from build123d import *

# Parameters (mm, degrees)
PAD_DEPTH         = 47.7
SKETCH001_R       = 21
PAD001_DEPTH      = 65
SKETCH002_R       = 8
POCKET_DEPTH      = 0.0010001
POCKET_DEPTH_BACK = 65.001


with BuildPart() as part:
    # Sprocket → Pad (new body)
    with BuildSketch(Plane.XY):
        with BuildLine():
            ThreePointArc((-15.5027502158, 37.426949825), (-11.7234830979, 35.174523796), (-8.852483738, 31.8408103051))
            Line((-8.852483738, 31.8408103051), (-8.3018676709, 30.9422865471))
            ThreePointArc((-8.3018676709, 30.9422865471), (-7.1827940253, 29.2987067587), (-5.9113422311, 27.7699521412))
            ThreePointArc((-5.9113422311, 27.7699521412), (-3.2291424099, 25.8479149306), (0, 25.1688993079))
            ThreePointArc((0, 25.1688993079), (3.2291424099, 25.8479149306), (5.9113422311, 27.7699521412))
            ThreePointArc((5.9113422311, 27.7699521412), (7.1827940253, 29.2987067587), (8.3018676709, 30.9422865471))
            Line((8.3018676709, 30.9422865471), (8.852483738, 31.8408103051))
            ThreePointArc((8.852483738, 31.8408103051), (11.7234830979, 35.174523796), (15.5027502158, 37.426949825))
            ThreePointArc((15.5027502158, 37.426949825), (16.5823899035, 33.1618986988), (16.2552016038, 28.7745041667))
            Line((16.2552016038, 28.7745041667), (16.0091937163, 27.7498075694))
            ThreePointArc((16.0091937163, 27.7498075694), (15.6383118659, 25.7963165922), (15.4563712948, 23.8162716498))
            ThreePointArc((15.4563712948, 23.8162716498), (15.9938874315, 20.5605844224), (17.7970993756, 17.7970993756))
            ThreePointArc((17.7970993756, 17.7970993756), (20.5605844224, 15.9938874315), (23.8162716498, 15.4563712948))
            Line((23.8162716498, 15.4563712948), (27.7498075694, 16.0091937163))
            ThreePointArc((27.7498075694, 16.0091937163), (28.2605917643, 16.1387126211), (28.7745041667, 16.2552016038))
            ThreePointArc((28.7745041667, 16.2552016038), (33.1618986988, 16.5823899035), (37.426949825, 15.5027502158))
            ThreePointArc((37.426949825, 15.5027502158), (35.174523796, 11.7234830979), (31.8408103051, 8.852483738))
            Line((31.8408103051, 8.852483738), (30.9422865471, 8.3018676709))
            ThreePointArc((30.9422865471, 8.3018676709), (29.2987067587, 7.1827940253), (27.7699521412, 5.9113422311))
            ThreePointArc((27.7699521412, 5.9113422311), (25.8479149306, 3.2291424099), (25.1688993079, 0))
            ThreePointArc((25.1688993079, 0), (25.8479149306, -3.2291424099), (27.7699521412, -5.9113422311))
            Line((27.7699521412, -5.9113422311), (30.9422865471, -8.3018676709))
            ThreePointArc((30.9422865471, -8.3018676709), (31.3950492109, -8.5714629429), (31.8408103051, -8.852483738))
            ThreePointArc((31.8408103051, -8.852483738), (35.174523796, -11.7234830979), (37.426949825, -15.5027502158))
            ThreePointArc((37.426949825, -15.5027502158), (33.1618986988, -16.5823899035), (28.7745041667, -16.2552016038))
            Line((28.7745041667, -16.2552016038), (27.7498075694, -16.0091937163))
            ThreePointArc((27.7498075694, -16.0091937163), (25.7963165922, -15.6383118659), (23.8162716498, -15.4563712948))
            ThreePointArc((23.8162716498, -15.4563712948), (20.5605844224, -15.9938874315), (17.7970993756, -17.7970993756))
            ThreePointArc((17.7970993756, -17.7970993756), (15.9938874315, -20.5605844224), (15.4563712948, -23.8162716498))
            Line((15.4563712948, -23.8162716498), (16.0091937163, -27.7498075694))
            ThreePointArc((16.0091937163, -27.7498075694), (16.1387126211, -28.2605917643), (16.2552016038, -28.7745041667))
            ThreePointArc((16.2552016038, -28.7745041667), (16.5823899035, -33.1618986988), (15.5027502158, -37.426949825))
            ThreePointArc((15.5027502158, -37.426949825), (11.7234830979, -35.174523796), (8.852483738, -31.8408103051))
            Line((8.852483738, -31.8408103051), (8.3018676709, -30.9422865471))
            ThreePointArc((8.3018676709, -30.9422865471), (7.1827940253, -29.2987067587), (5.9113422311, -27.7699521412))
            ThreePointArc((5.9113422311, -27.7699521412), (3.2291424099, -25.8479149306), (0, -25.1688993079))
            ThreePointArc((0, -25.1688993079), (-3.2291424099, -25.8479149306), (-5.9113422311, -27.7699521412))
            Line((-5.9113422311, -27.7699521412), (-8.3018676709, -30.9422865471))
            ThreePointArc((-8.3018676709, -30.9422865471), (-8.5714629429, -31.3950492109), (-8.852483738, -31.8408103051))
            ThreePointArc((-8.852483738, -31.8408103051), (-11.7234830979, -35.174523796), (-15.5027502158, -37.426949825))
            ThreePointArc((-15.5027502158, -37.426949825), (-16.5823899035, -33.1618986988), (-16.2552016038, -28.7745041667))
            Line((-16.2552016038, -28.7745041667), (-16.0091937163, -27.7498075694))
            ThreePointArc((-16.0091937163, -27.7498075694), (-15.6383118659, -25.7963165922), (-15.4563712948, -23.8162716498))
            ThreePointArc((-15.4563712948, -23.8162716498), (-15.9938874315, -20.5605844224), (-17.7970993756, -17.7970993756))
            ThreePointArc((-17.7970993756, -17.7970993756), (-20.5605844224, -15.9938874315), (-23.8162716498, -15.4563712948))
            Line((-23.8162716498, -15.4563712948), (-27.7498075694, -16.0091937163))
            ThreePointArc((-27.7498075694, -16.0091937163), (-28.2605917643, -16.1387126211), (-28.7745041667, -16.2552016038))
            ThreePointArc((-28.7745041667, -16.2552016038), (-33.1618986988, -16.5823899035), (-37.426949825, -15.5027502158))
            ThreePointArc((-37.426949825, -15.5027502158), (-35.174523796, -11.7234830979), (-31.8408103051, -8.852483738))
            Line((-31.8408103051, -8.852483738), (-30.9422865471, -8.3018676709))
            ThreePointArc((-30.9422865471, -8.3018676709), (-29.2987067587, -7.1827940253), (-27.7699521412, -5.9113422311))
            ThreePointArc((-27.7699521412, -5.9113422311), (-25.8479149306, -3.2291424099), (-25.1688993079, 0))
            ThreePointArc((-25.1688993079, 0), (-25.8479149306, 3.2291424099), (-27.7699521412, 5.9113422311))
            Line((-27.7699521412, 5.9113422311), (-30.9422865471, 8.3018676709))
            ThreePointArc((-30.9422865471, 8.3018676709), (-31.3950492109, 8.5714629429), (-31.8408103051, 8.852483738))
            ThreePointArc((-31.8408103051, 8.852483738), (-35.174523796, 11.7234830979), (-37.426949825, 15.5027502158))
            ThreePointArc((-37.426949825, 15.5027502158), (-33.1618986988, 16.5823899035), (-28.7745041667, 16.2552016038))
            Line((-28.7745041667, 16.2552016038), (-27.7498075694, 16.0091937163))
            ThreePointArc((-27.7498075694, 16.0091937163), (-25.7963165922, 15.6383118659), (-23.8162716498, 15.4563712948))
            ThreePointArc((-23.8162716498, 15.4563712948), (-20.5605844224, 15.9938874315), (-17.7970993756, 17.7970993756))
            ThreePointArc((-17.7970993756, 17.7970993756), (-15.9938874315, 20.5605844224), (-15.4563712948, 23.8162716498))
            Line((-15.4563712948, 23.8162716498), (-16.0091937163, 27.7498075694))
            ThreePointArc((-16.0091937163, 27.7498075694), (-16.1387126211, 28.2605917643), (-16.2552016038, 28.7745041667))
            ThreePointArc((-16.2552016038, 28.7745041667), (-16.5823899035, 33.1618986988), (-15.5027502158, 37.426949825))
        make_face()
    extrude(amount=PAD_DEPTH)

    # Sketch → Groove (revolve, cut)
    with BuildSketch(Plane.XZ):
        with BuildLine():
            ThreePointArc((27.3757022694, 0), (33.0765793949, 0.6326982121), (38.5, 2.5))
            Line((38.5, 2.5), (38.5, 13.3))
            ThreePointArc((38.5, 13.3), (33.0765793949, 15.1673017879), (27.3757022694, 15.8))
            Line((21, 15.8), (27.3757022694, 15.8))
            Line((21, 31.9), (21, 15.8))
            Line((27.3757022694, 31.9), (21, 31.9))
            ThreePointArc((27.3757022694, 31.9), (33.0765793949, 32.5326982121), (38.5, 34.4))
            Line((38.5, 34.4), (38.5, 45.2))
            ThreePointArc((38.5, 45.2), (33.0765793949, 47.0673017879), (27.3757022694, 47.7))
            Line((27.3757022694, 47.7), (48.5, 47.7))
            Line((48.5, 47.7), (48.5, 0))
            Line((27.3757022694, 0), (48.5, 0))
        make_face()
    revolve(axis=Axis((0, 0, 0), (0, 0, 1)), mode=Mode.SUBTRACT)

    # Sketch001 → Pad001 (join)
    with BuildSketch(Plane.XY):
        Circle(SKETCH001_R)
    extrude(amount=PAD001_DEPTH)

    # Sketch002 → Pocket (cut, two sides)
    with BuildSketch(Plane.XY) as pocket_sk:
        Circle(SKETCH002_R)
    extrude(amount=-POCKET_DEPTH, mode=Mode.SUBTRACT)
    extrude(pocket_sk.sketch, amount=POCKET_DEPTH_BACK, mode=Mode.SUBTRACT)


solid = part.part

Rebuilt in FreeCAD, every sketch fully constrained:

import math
import FreeCAD as App
import Part
import Sketcher

V = App.Vector
Q = App.Units.Quantity

doc = App.newDocument("Part")
body = doc.addObject("PartDesign::Body", "Body")

sketch1 = body.newObject("Sketcher::SketchObject", "Sketch")
sketch1.AttachmentSupport = (doc.getObject("XY_Plane"), [""])
sketch1.MapMode = "FlatFace"
sketch1.addGeometry(Part.ArcOfCircle(Part.Circle(V(-20.53969, 24.678881, 0), V(0, 0, 1), 13.707079), math.radians(31.5), math.radians(68.440333)), False)
sketch1.addGeometry(Part.ArcOfCircle(Part.Circle(V(-2.92685, 31.974358, 0), V(0, 0, 1), 13.707079), math.radians(156.559667), math.radians(193.5)), False)
sketch1.addGeometry(Part.ArcOfCircle(Part.Circle(V(4.010542, 33.098, 0), V(0, 0, 1), 20.7218), math.radians(-167.957054), math.radians(-165.042946)), False)
sketch1.addGeometry(Part.LineSegment(V(-16.009194, 27.749808, 0), V(-15.456371, 23.816272, 0)), False)
sketch1.addGeometry(Part.ArcOfCircle(Part.Circle(V(-23.46654, 23.46654, 0), V(0, 0, 1), 8.0178), math.radians(-45), math.radians(2.5)), False)
sketch1.addGeometry(Part.ArcOfCircle(Part.Circle(V(-23.46654, 23.46654, 0), V(0, 0, 1), 8.0178), math.radians(-92.5), math.radians(-45)), False)
sketch1.addGeometry(Part.ArcOfCircle(Part.Circle(V(-22.912399, 36.158449, 0), V(0, 0, 1), 20.7218), math.radians(-103.5), math.radians(-92.5)), False)
sketch1.addGeometry(Part.LineSegment(V(-27.749808, 16.009194, 0), V(-28.774504, 16.255202, 0)), False)
sketch1.addGeometry(Part.ArcOfCircle(Part.Circle(V(-31.974358, 2.92685, 0), V(0, 0, 1), 13.707079), math.radians(76.5), math.radians(113.440333)), False)
sketch1.addGeometry(Part.ArcOfCircle(Part.Circle(V(-24.678881, 20.53969, 0), V(0, 0, 1), 13.707079), math.radians(-158.440333), math.radians(-121.5)), False)
sketch1.addGeometry(Part.ArcOfCircle(Part.Circle(V(-20.567939, 26.239702, 0), V(0, 0, 1), 20.7218), math.radians(-122.957054), math.radians(-120.042946)), False)
sketch1.addGeometry(Part.LineSegment(V(-30.942287, 8.301868, 0), V(-27.769952, 5.911342, 0)), False)
sketch1.addGeometry(Part.ArcOfCircle(Part.Circle(V(-33.186699, 0, 0), V(0, 0, 1), 8.0178), math.radians(0), math.radians(47.5)), False)
sketch1.addGeometry(Part.ArcOfCircle(Part.Circle(V(-33.186699, 0, 0), V(0, 0, 1), 8.0178), math.radians(-47.5), math.radians(0)), False)
sketch1.addGeometry(Part.ArcOfCircle(Part.Circle(V(-41.769397, 9.366371, 0), V(0, 0, 1), 20.7218), math.radians(-58.5), math.radians(-47.5)), False)
sketch1.addGeometry(Part.LineSegment(V(-30.942287, -8.301868, 0), V(-31.84081, -8.852484, 0)), False)
sketch1.addGeometry(Part.ArcOfCircle(Part.Circle(V(-24.678881, -20.53969, 0), V(0, 0, 1), 13.707079), math.radians(121.5), math.radians(158.440333)), False)
sketch1.addGeometry(Part.ArcOfCircle(Part.Circle(V(-31.974358, -2.92685, 0), V(0, 0, 1), 13.707079), math.radians(-113.440333), math.radians(-76.5)), False)
sketch1.addGeometry(Part.ArcOfCircle(Part.Circle(V(-33.098, 4.010542, 0), V(0, 0, 1), 20.7218), math.radians(-77.957054), math.radians(-75.042946)), False)
sketch1.addGeometry(Part.LineSegment(V(-27.749808, -16.009194, 0), V(-23.816272, -15.456371, 0)), False)
sketch1.addGeometry(Part.ArcOfCircle(Part.Circle(V(-23.46654, -23.46654, 0), V(0, 0, 1), 8.0178), math.radians(45), math.radians(92.5)), False)
sketch1.addGeometry(Part.ArcOfCircle(Part.Circle(V(-23.46654, -23.46654, 0), V(0, 0, 1), 8.0178), math.radians(-2.5), math.radians(45)), False)
sketch1.addGeometry(Part.ArcOfCircle(Part.Circle(V(-36.158449, -22.912399, 0), V(0, 0, 1), 20.7218), math.radians(-13.5), math.radians(-2.5)), False)
sketch1.addGeometry(Part.LineSegment(V(-16.009194, -27.749808, 0), V(-16.255202, -28.774504, 0)), False)
sketch1.addGeometry(Part.ArcOfCircle(Part.Circle(V(-2.92685, -31.974358, 0), V(0, 0, 1), 13.707079), math.radians(166.5), math.radians(203.440333)), False)
sketch1.addGeometry(Part.ArcOfCircle(Part.Circle(V(-20.53969, -24.678881, 0), V(0, 0, 1), 13.707079), math.radians(-68.440333), math.radians(-31.5)), False)
sketch1.addGeometry(Part.ArcOfCircle(Part.Circle(V(-26.239702, -20.567939, 0), V(0, 0, 1), 20.7218), math.radians(-32.957054), math.radians(-30.042946)), False)
sketch1.addGeometry(Part.LineSegment(V(-8.301868, -30.942287, 0), V(-5.911342, -27.769952, 0)), False)
sketch1.addGeometry(Part.ArcOfCircle(Part.Circle(V(0, -33.186699, 0), V(0, 0, 1), 8.0178), math.radians(90), math.radians(137.5)), False)
sketch1.addGeometry(Part.ArcOfCircle(Part.Circle(V(0, -33.186699, 0), V(0, 0, 1), 8.0178), math.radians(42.5), math.radians(90)), False)
sketch1.addGeometry(Part.ArcOfCircle(Part.Circle(V(-9.366371, -41.769397, 0), V(0, 0, 1), 20.7218), math.radians(31.5), math.radians(42.5)), False)
sketch1.addGeometry(Part.LineSegment(V(8.301868, -30.942287, 0), V(8.852484, -31.84081, 0)), False)
sketch1.addGeometry(Part.ArcOfCircle(Part.Circle(V(20.53969, -24.678881, 0), V(0, 0, 1), 13.707079), math.radians(-148.5), math.radians(-111.559667)), False)
sketch1.addGeometry(Part.ArcOfCircle(Part.Circle(V(2.92685, -31.974358, 0), V(0, 0, 1), 13.707079), math.radians(-23.440333), math.radians(13.5)), False)
sketch1.addGeometry(Part.ArcOfCircle(Part.Circle(V(-4.010542, -33.098, 0), V(0, 0, 1), 20.7218), math.radians(12.042946), math.radians(14.957054)), False)
sketch1.addGeometry(Part.LineSegment(V(16.009194, -27.749808, 0), V(15.456371, -23.816272, 0)), False)
sketch1.addGeometry(Part.ArcOfCircle(Part.Circle(V(23.46654, -23.46654, 0), V(0, 0, 1), 8.0178), math.radians(135), math.radians(182.5)), False)
sketch1.addGeometry(Part.ArcOfCircle(Part.Circle(V(23.46654, -23.46654, 0), V(0, 0, 1), 8.0178), math.radians(87.5), math.radians(135)), False)
sketch1.addGeometry(Part.ArcOfCircle(Part.Circle(V(22.912399, -36.158449, 0), V(0, 0, 1), 20.7218), math.radians(76.5), math.radians(87.5)), False)
sketch1.addGeometry(Part.LineSegment(V(27.749808, -16.009194, 0), V(28.774504, -16.255202, 0)), False)
sketch1.addGeometry(Part.ArcOfCircle(Part.Circle(V(31.974358, -2.92685, 0), V(0, 0, 1), 13.707079), math.radians(-103.5), math.radians(-66.559667)), False)
sketch1.addGeometry(Part.ArcOfCircle(Part.Circle(V(24.678881, -20.53969, 0), V(0, 0, 1), 13.707079), math.radians(21.559667), math.radians(58.5)), False)
sketch1.addGeometry(Part.ArcOfCircle(Part.Circle(V(20.567939, -26.239702, 0), V(0, 0, 1), 20.7218), math.radians(57.042946), math.radians(59.957054)), False)
sketch1.addGeometry(Part.LineSegment(V(30.942287, -8.301868, 0), V(27.769952, -5.911342, 0)), False)
sketch1.addGeometry(Part.ArcOfCircle(Part.Circle(V(33.186699, 0, 0), V(0, 0, 1), 8.0178), math.radians(180), math.radians(227.5)), False)
sketch1.addGeometry(Part.ArcOfCircle(Part.Circle(V(33.186699, 0, 0), V(0, 0, 1), 8.0178), math.radians(132.5), math.radians(180)), False)
sketch1.addGeometry(Part.ArcOfCircle(Part.Circle(V(41.769397, -9.366371, 0), V(0, 0, 1), 20.7218), math.radians(121.5), math.radians(132.5)), False)
sketch1.addGeometry(Part.LineSegment(V(30.942287, 8.301868, 0), V(31.84081, 8.852484, 0)), False)
sketch1.addGeometry(Part.ArcOfCircle(Part.Circle(V(24.678881, 20.53969, 0), V(0, 0, 1), 13.707079), math.radians(-58.5), math.radians(-21.559667)), False)
sketch1.addGeometry(Part.ArcOfCircle(Part.Circle(V(31.974358, 2.92685, 0), V(0, 0, 1), 13.707079), math.radians(66.559667), math.radians(103.5)), False)
sketch1.addGeometry(Part.ArcOfCircle(Part.Circle(V(33.098, -4.010542, 0), V(0, 0, 1), 20.7218), math.radians(102.042946), math.radians(104.957054)), False)
sketch1.addGeometry(Part.LineSegment(V(27.749808, 16.009194, 0), V(23.816272, 15.456371, 0)), False)
sketch1.addGeometry(Part.ArcOfCircle(Part.Circle(V(23.46654, 23.46654, 0), V(0, 0, 1), 8.0178), math.radians(-135), math.radians(-87.5)), False)
sketch1.addGeometry(Part.ArcOfCircle(Part.Circle(V(23.46654, 23.46654, 0), V(0, 0, 1), 8.0178), math.radians(177.5), math.radians(225)), False)
sketch1.addGeometry(Part.ArcOfCircle(Part.Circle(V(36.158449, 22.912399, 0), V(0, 0, 1), 20.7218), math.radians(166.5), math.radians(177.5)), False)
sketch1.addGeometry(Part.LineSegment(V(16.009194, 27.749808, 0), V(16.255202, 28.774504, 0)), False)
sketch1.addGeometry(Part.ArcOfCircle(Part.Circle(V(2.92685, 31.974358, 0), V(0, 0, 1), 13.707079), math.radians(-13.5), math.radians(23.440333)), False)
sketch1.addGeometry(Part.ArcOfCircle(Part.Circle(V(20.53969, 24.678881, 0), V(0, 0, 1), 13.707079), math.radians(111.559667), math.radians(148.5)), False)
sketch1.addGeometry(Part.LineSegment(V(8.852484, 31.84081, 0), V(8.301868, 30.942287, 0)), False)
sketch1.addGeometry(Part.ArcOfCircle(Part.Circle(V(-9.366371, 41.769397, 0), V(0, 0, 1), 20.7218), math.radians(-42.5), math.radians(-31.5)), False)
sketch1.addGeometry(Part.ArcOfCircle(Part.Circle(V(0, 33.186699, 0), V(0, 0, 1), 8.0178), math.radians(-90), math.radians(-42.5)), False)
sketch1.addGeometry(Part.ArcOfCircle(Part.Circle(V(0, 33.186699, 0), V(0, 0, 1), 8.0178), math.radians(-137.5), math.radians(-90)), False)
sketch1.addGeometry(Part.ArcOfCircle(Part.Circle(V(9.366371, 41.769397, 0), V(0, 0, 1), 20.7218), math.radians(-148.5), math.radians(-137.5)), False)
sketch1.addGeometry(Part.LineSegment(V(-8.301868, 30.942287, 0), V(-8.852484, 31.84081, 0)), False)
sketch1.addConstraint(Sketcher.Constraint("Coincident", 0, 2, 1, 1))
sketch1.addConstraint(Sketcher.Constraint("Coincident", 1, 2, 2, 1))
sketch1.addConstraint(Sketcher.Constraint("Coincident", 2, 2, 3, 1))
sketch1.addConstraint(Sketcher.Constraint("Coincident", 3, 2, 4, 2))
sketch1.addConstraint(Sketcher.Constraint("Tangent", 4, 1, 5, 2))
sketch1.addConstraint(Sketcher.Constraint("Tangent", 5, 1, 6, 2))
sketch1.addConstraint(Sketcher.Constraint("Tangent", 6, 1, 7, 1))
sketch1.addConstraint(Sketcher.Constraint("Tangent", 7, 2, 8, 1))
sketch1.addConstraint(Sketcher.Constraint("Coincident", 8, 2, 9, 1))
sketch1.addConstraint(Sketcher.Constraint("Coincident", 9, 2, 10, 1))
sketch1.addConstraint(Sketcher.Constraint("Coincident", 10, 2, 11, 1))
sketch1.addConstraint(Sketcher.Constraint("Coincident", 11, 2, 12, 2))
sketch1.addConstraint(Sketcher.Constraint("Tangent", 12, 1, 13, 2))
sketch1.addConstraint(Sketcher.Constraint("Tangent", 13, 1, 14, 2))
sketch1.addConstraint(Sketcher.Constraint("Tangent", 14, 1, 15, 1))
sketch1.addConstraint(Sketcher.Constraint("Tangent", 15, 2, 16, 1))
sketch1.addConstraint(Sketcher.Constraint("Coincident", 16, 2, 17, 1))
sketch1.addConstraint(Sketcher.Constraint("Coincident", 17, 2, 18, 1))
sketch1.addConstraint(Sketcher.Constraint("Coincident", 18, 2, 19, 1))
sketch1.addConstraint(Sketcher.Constraint("Coincident", 19, 2, 20, 2))
sketch1.addConstraint(Sketcher.Constraint("Tangent", 20, 1, 21, 2))
sketch1.addConstraint(Sketcher.Constraint("Tangent", 21, 1, 22, 2))
sketch1.addConstraint(Sketcher.Constraint("Tangent", 22, 1, 23, 1))
sketch1.addConstraint(Sketcher.Constraint("Tangent", 23, 2, 24, 1))
sketch1.addConstraint(Sketcher.Constraint("Coincident", 24, 2, 25, 1))
sketch1.addConstraint(Sketcher.Constraint("Coincident", 25, 2, 26, 1))
sketch1.addConstraint(Sketcher.Constraint("Coincident", 26, 2, 27, 1))
sketch1.addConstraint(Sketcher.Constraint("Coincident", 27, 2, 28, 2))
sketch1.addConstraint(Sketcher.Constraint("Tangent", 28, 1, 29, 2))
sketch1.addConstraint(Sketcher.Constraint("Tangent", 29, 1, 30, 2))
sketch1.addConstraint(Sketcher.Constraint("Tangent", 30, 1, 31, 1))
sketch1.addConstraint(Sketcher.Constraint("Tangent", 31, 2, 32, 1))
sketch1.addConstraint(Sketcher.Constraint("Coincident", 32, 2, 33, 1))
sketch1.addConstraint(Sketcher.Constraint("Coincident", 33, 2, 34, 1))
sketch1.addConstraint(Sketcher.Constraint("Coincident", 34, 2, 35, 1))
sketch1.addConstraint(Sketcher.Constraint("Coincident", 35, 2, 36, 2))
sketch1.addConstraint(Sketcher.Constraint("Tangent", 36, 1, 37, 2))
sketch1.addConstraint(Sketcher.Constraint("Tangent", 37, 1, 38, 2))
sketch1.addConstraint(Sketcher.Constraint("Tangent", 38, 1, 39, 1))
sketch1.addConstraint(Sketcher.Constraint("Tangent", 39, 2, 40, 1))
sketch1.addConstraint(Sketcher.Constraint("Coincident", 40, 2, 41, 1))
sketch1.addConstraint(Sketcher.Constraint("Coincident", 41, 2, 42, 1))
sketch1.addConstraint(Sketcher.Constraint("Coincident", 42, 2, 43, 1))
sketch1.addConstraint(Sketcher.Constraint("Coincident", 43, 2, 44, 2))
sketch1.addConstraint(Sketcher.Constraint("Tangent", 44, 1, 45, 2))
sketch1.addConstraint(Sketcher.Constraint("Tangent", 45, 1, 46, 2))
sketch1.addConstraint(Sketcher.Constraint("Tangent", 46, 1, 47, 1))
sketch1.addConstraint(Sketcher.Constraint("Tangent", 47, 2, 48, 1))
sketch1.addConstraint(Sketcher.Constraint("Coincident", 48, 2, 49, 1))
sketch1.addConstraint(Sketcher.Constraint("Coincident", 49, 2, 50, 1))
sketch1.addConstraint(Sketcher.Constraint("Coincident", 50, 2, 51, 1))
sketch1.addConstraint(Sketcher.Constraint("Coincident", 51, 2, 52, 2))
sketch1.addConstraint(Sketcher.Constraint("Tangent", 52, 1, 53, 2))
sketch1.addConstraint(Sketcher.Constraint("Tangent", 53, 1, 54, 2))
sketch1.addConstraint(Sketcher.Constraint("Tangent", 54, 1, 55, 1))
sketch1.addConstraint(Sketcher.Constraint("Tangent", 55, 2, 56, 1))
sketch1.addConstraint(Sketcher.Constraint("Coincident", 56, 2, 57, 1))
sketch1.addConstraint(Sketcher.Constraint("Tangent", 57, 2, 58, 1))
sketch1.addConstraint(Sketcher.Constraint("Tangent", 58, 2, 59, 2))
sketch1.addConstraint(Sketcher.Constraint("Tangent", 59, 1, 60, 2))
sketch1.addConstraint(Sketcher.Constraint("Tangent", 60, 1, 61, 2))
sketch1.addConstraint(Sketcher.Constraint("Tangent", 61, 1, 62, 2))
sketch1.addConstraint(Sketcher.Constraint("Tangent", 62, 1, 63, 1))
sketch1.addConstraint(Sketcher.Constraint("Tangent", 63, 2, 0, 1))
sketch1.addConstraint(Sketcher.Constraint("Equal", 0, 1))
sketch1.addConstraint(Sketcher.Constraint("Equal", 4, 5))
sketch1.addConstraint(Sketcher.Constraint("Equal", 2, 6))
sketch1.addConstraint(Sketcher.Constraint("Equal", 1, 8))
sketch1.addConstraint(Sketcher.Constraint("Equal", 8, 9))
sketch1.addConstraint(Sketcher.Constraint("Equal", 6, 10))
sketch1.addConstraint(Sketcher.Constraint("Equal", 5, 12))
sketch1.addConstraint(Sketcher.Constraint("Equal", 12, 13))
sketch1.addConstraint(Sketcher.Constraint("Equal", 10, 14))
sketch1.addConstraint(Sketcher.Constraint("Equal", 9, 16))
sketch1.addConstraint(Sketcher.Constraint("Equal", 16, 17))
sketch1.addConstraint(Sketcher.Constraint("Equal", 14, 18))
sketch1.addConstraint(Sketcher.Constraint("Equal", 13, 20))
sketch1.addConstraint(Sketcher.Constraint("Equal", 20, 21))
sketch1.addConstraint(Sketcher.Constraint("Equal", 18, 22))
sketch1.addConstraint(Sketcher.Constraint("Equal", 17, 24))
sketch1.addConstraint(Sketcher.Constraint("Equal", 24, 25))
sketch1.addConstraint(Sketcher.Constraint("Equal", 22, 26))
sketch1.addConstraint(Sketcher.Constraint("Equal", 21, 28))
sketch1.addConstraint(Sketcher.Constraint("Equal", 28, 29))
sketch1.addConstraint(Sketcher.Constraint("Equal", 26, 30))
sketch1.addConstraint(Sketcher.Constraint("Equal", 25, 32))
sketch1.addConstraint(Sketcher.Constraint("Equal", 32, 33))
sketch1.addConstraint(Sketcher.Constraint("Equal", 30, 34))
sketch1.addConstraint(Sketcher.Constraint("Equal", 29, 36))
sketch1.addConstraint(Sketcher.Constraint("Equal", 36, 37))
sketch1.addConstraint(Sketcher.Constraint("Equal", 34, 38))
sketch1.addConstraint(Sketcher.Constraint("Equal", 33, 40))
sketch1.addConstraint(Sketcher.Constraint("Equal", 40, 41))
sketch1.addConstraint(Sketcher.Constraint("Equal", 38, 42))
sketch1.addConstraint(Sketcher.Constraint("Equal", 37, 44))
sketch1.addConstraint(Sketcher.Constraint("Equal", 44, 45))
sketch1.addConstraint(Sketcher.Constraint("Equal", 42, 46))
sketch1.addConstraint(Sketcher.Constraint("Equal", 41, 48))
sketch1.addConstraint(Sketcher.Constraint("Equal", 48, 49))
sketch1.addConstraint(Sketcher.Constraint("Equal", 46, 50))
sketch1.addConstraint(Sketcher.Constraint("Equal", 45, 52))
sketch1.addConstraint(Sketcher.Constraint("Equal", 52, 53))
sketch1.addConstraint(Sketcher.Constraint("Equal", 50, 54))
sketch1.addConstraint(Sketcher.Constraint("Equal", 49, 56))
sketch1.addConstraint(Sketcher.Constraint("Equal", 56, 57))
sketch1.addConstraint(Sketcher.Constraint("Equal", 54, 59))
sketch1.addConstraint(Sketcher.Constraint("Equal", 53, 60))
sketch1.addConstraint(Sketcher.Constraint("Equal", 60, 61))
sketch1.addConstraint(Sketcher.Constraint("Equal", 59, 62))
sketch1.addConstraint(Sketcher.Constraint("Symmetric", 0, 3, 32, 3, -1, 1))
sketch1.addConstraint(Sketcher.Constraint("Symmetric", 1, 3, 33, 3, -1, 1))
sketch1.addConstraint(Sketcher.Constraint("Symmetric", 2, 3, 34, 3, -1, 1))
sketch1.addConstraint(Sketcher.Constraint("Symmetric", 4, 3, 36, 3, -1, 1))
sketch1.addConstraint(Sketcher.Constraint("Symmetric", 8, 3, 40, 3, -1, 1))
sketch1.addConstraint(Sketcher.Constraint("Symmetric", 9, 3, 41, 3, -1, 1))
sketch1.addConstraint(Sketcher.Constraint("Symmetric", 10, 3, 42, 3, -1, 1))
sketch1.addConstraint(Sketcher.Constraint("Symmetric", 12, 3, 44, 3, -1, 1))
sketch1.addConstraint(Sketcher.Constraint("Symmetric", 16, 3, 48, 3, -1, 1))
sketch1.addConstraint(Sketcher.Constraint("Symmetric", 17, 3, 49, 3, -1, 1))
sketch1.addConstraint(Sketcher.Constraint("Symmetric", 18, 3, 50, 3, -1, 1))
sketch1.addConstraint(Sketcher.Constraint("Symmetric", 20, 3, 52, 3, -1, 1))
sketch1.addConstraint(Sketcher.Constraint("Symmetric", 24, 3, 56, 3, -1, 1))
sketch1.addConstraint(Sketcher.Constraint("Symmetric", 25, 3, 57, 3, -1, 1))
sketch1.addConstraint(Sketcher.Constraint("Symmetric", 28, 3, 60, 3, -1, 1))
sketch1.addConstraint(Sketcher.Constraint("Symmetric", 26, 2, 58, 2, -1, 1))
sketch1.addConstraint(Sketcher.Constraint("Symmetric", 25, 3, 32, 3, -2))
sketch1.addConstraint(Sketcher.Constraint("Symmetric", 24, 3, 33, 3, -2))
sketch1.addConstraint(Sketcher.Constraint("Symmetric", 20, 3, 36, 3, -2))
sketch1.addConstraint(Sketcher.Constraint("Symmetric", 17, 3, 40, 3, -2))
sketch1.addConstraint(Sketcher.Constraint("Symmetric", 16, 3, 41, 3, -2))
sketch1.addConstraint(Sketcher.Constraint("Symmetric", 59, 3, 62, 3, -2))
sketch1.addConstraint(Sketcher.Constraint("Symmetric", 22, 1, 34, 2, -2))
sketch1.addConstraint(Sketcher.Constraint("Symmetric", 18, 2, 38, 1, -2))
sketch1.addConstraint(Sketcher.Constraint("Symmetric", 14, 1, 42, 2, -2))
sketch1.addConstraint(Sketcher.Constraint("Symmetric", 13, 1, 43, 2, -2))
sketch1.addConstraint(Sketcher.Constraint("Symmetric", 10, 2, 46, 1, -2))
sketch1.addConstraint(Sketcher.Constraint("Symmetric", 6, 1, 50, 2, -2))
sketch1.addConstraint(Sketcher.Constraint("Symmetric", 2, 2, 54, 1, -2))
sketch1.addConstraint(Sketcher.Constraint("PointOnObject", 12, 1, -1))
sketch1.addConstraint(Sketcher.Constraint("PointOnObject", 28, 1, -2))
sketch1.addConstraint(Sketcher.Constraint("PointOnObject", 44, 1, -1))
sketch1.addConstraint(Sketcher.Constraint("PointOnObject", 60, 1, -2))
sketch1.addConstraint(Sketcher.Constraint("Perpendicular", 3, 19))
sketch1.addConstraint(Sketcher.Constraint("Perpendicular", 7, 23))
sketch1.addConstraint(Sketcher.Constraint("Perpendicular", 11, 27))
sketch1.addConstraint(Sketcher.Constraint("Perpendicular", 15, 31))
sketch1.addConstraint(Sketcher.Constraint("Perpendicular", 19, 35))
sketch1.addConstraint(Sketcher.Constraint("Perpendicular", 27, 43))
sketch1.addConstraint(Sketcher.Constraint("Perpendicular", 35, 51))
sketch1.addConstraint(Sketcher.Constraint("Perpendicular", 47, 63))
sketch1.addConstraint(Sketcher.Constraint("Horizontal", 27, 2, 29, 1))
sketch1.addConstraint(Sketcher.Constraint("Horizontal", 25, 2, 31, 2))
sketch1.addConstraint(Sketcher.Constraint("Horizontal", 23, 2, 33, 2))
sketch1.addConstraint(Sketcher.Constraint("Horizontal", 21, 1, 35, 2))
sketch1.addConstraint(Sketcher.Constraint("Horizontal", 20, 1, 36, 1))
sketch1.addConstraint(Sketcher.Constraint("Horizontal", 19, 2, 37, 1))
sketch1.addConstraint(Sketcher.Constraint("Horizontal", 17, 2, 39, 2))
sketch1.addConstraint(Sketcher.Constraint("Horizontal", 15, 2, 41, 2))
sketch1.addConstraint(Sketcher.Constraint("Horizontal", 4, 1, 52, 1))
sketch1.addConstraint(Sketcher.Constraint("Vertical", 4, 1, 20, 1))
sketch1.addConstraint(Sketcher.Constraint("Equal", 3, 11))
sketch1.addConstraint(Sketcher.Constraint("Equal", 7, 15))
sketch1.addConstraint(Sketcher.Constraint("Equal", 15, 23))
sketch1.addConstraint(Sketcher.Constraint("Equal", 23, 31))
sketch1.addConstraint(Sketcher.Constraint("Angle", 3, Q("-82 deg")))
sketch1.addConstraint(Sketcher.Constraint("Angle", 11, Q("-37 deg")))
sketch1.addConstraint(Sketcher.Constraint("Angle", 7, Q("166.5 deg")))
sketch1.addConstraint(Sketcher.Constraint("Radius", 2, 20.7218))
sketch1.addConstraint(Sketcher.Constraint("Radius", 4, 8.0178))
sketch1.addConstraint(Sketcher.Constraint("Radius", 0, 13.707079))
sketch1.addConstraint(Sketcher.Constraint("DistanceY", -1, 1, 2, 3, 33.098))
sketch1.addConstraint(Sketcher.Constraint("DistanceX", 18, 3, -1, 1, 33.098))
sketch1.addConstraint(Sketcher.Constraint("DistanceX", 6, 3, -1, 1, 22.912399))
sketch1.addConstraint(Sketcher.Constraint("DistanceX", 12, 3, -1, 1, 33.186699))
sketch1.addConstraint(Sketcher.Constraint("DistanceY", 28, 3, -1, 1, 33.186699))
sketch1.addConstraint(Sketcher.Constraint("DistanceX", 4, 1, -1, 1, 17.797099))
pad1 = body.newObject("PartDesign::Pad", "Pad")
pad1.Profile = sketch1
pad1.Length = 47.7

sketch2 = body.newObject("Sketcher::SketchObject", "Sketch001")
sketch2.AttachmentSupport = (doc.getObject("XZ_Plane"), [""])
sketch2.MapMode = "FlatFace"
sketch2.addGeometry(Part.ArcOfCircle(Part.Circle(V(27.375702, 26, 0), V(0, 0, 1), 26), math.radians(-90), math.radians(-64.668325)), False)
sketch2.addGeometry(Part.LineSegment(V(27.375702, 0, 0), V(48.5, 0, 0)), False)
sketch2.addGeometry(Part.LineSegment(V(48.5, 0, 0), V(48.5, 47.7, 0)), False)
sketch2.addGeometry(Part.LineSegment(V(48.5, 47.7, 0), V(27.375702, 47.7, 0)), False)
sketch2.addGeometry(Part.ArcOfCircle(Part.Circle(V(27.375702, 21.7, 0), V(0, 0, 1), 26), math.radians(64.668325), math.radians(90)), False)
sketch2.addGeometry(Part.LineSegment(V(38.5, 45.2, 0), V(38.5, 34.4, 0)), False)
sketch2.addGeometry(Part.ArcOfCircle(Part.Circle(V(27.375702, 57.9, 0), V(0, 0, 1), 26), math.radians(-90), math.radians(-64.668325)), False)
sketch2.addGeometry(Part.LineSegment(V(27.375702, 31.9, 0), V(21, 31.9, 0)), False)
sketch2.addGeometry(Part.LineSegment(V(21, 31.9, 0), V(21, 15.8, 0)), False)
sketch2.addGeometry(Part.LineSegment(V(21, 15.8, 0), V(27.375702, 15.8, 0)), False)
sketch2.addGeometry(Part.ArcOfCircle(Part.Circle(V(27.375702, -10.2, 0), V(0, 0, 1), 26), math.radians(64.668325), math.radians(90)), False)
sketch2.addGeometry(Part.LineSegment(V(38.5, 13.3, 0), V(38.5, 2.5, 0)), False)
sketch2.addConstraint(Sketcher.Constraint("Tangent", 0, 1, 1, 1))
sketch2.addConstraint(Sketcher.Constraint("Coincident", 1, 2, 2, 1))
sketch2.addConstraint(Sketcher.Constraint("Coincident", 2, 2, 3, 1))
sketch2.addConstraint(Sketcher.Constraint("Tangent", 3, 2, 4, 2))
sketch2.addConstraint(Sketcher.Constraint("Coincident", 4, 1, 5, 1))
sketch2.addConstraint(Sketcher.Constraint("Coincident", 5, 2, 6, 2))
sketch2.addConstraint(Sketcher.Constraint("Tangent", 6, 1, 7, 1))
sketch2.addConstraint(Sketcher.Constraint("Coincident", 7, 2, 8, 1))
sketch2.addConstraint(Sketcher.Constraint("Coincident", 8, 2, 9, 1))
sketch2.addConstraint(Sketcher.Constraint("Tangent", 9, 2, 10, 2))
sketch2.addConstraint(Sketcher.Constraint("Coincident", 10, 1, 11, 1))
sketch2.addConstraint(Sketcher.Constraint("Coincident", 11, 2, 0, 2))
sketch2.addConstraint(Sketcher.Constraint("Horizontal", 1))
sketch2.addConstraint(Sketcher.Constraint("Vertical", 2))
sketch2.addConstraint(Sketcher.Constraint("Horizontal", 3))
sketch2.addConstraint(Sketcher.Constraint("Vertical", 5))
sketch2.addConstraint(Sketcher.Constraint("Horizontal", 7))
sketch2.addConstraint(Sketcher.Constraint("Vertical", 8))
sketch2.addConstraint(Sketcher.Constraint("Horizontal", 9))
sketch2.addConstraint(Sketcher.Constraint("Vertical", 11))
sketch2.addConstraint(Sketcher.Constraint("Equal", 0, 4))
sketch2.addConstraint(Sketcher.Constraint("Equal", 4, 6))
sketch2.addConstraint(Sketcher.Constraint("Equal", 6, 10))
sketch2.addConstraint(Sketcher.Constraint("PointOnObject", 0, 1, -1))
sketch2.addConstraint(Sketcher.Constraint("Vertical", 0, 3, 4, 3))
sketch2.addConstraint(Sketcher.Constraint("Vertical", 4, 3, 6, 3))
sketch2.addConstraint(Sketcher.Constraint("Vertical", 6, 3, 10, 3))
sketch2.addConstraint(Sketcher.Constraint("Vertical", 5, 2, 10, 1))
sketch2.addConstraint(Sketcher.Constraint("Equal", 5, 11))
sketch2.addConstraint(Sketcher.Constraint("Radius", 0, 26.0))
sketch2.addConstraint(Sketcher.Constraint("DistanceY", 2, 1, 2, 2, 47.7))
sketch2.addConstraint(Sketcher.Constraint("DistanceY", 5, 2, 5, 1, 10.8))
sketch2.addConstraint(Sketcher.Constraint("DistanceY", 8, 2, 8, 1, 16.1))
sketch2.addConstraint(Sketcher.Constraint("DistanceX", -1, 1, 7, 2, 21.0))
sketch2.addConstraint(Sketcher.Constraint("DistanceX", 4, 1, 2, 2, 10.0))
sketch2.addConstraint(Sketcher.Constraint("DistanceX", -1, 1, 1, 2, 48.5))
groove = body.newObject("PartDesign::Groove", "Groove")
groove.Profile = sketch2
groove.ReferenceAxis = (sketch2, ["V_Axis"])
groove.Angle = 360

sketch3 = body.newObject("Sketcher::SketchObject", "Sketch002")
sketch3.AttachmentSupport = (doc.getObject("XY_Plane"), [""])
sketch3.MapMode = "FlatFace"
sketch3.addGeometry(Part.Circle(V(0, 0, 0), V(0, 0, 1), 21), False)
sketch3.addConstraint(Sketcher.Constraint("Coincident", 0, 3, -1, 1))
sketch3.addConstraint(Sketcher.Constraint("Diameter", 0, 42.0))
pad2 = body.newObject("PartDesign::Pad", "Pad001")
pad2.Profile = sketch3
pad2.Length = 65

sketch4 = body.newObject("Sketcher::SketchObject", "Sketch003")
sketch4.AttachmentSupport = (doc.getObject("XY_Plane"), [""])
sketch4.MapMode = "FlatFace"
sketch4.addGeometry(Part.Circle(V(0, 0, 0), V(0, 0, 1), 8), False)
sketch4.addConstraint(Sketcher.Constraint("Coincident", 0, 3, -1, 1))
sketch4.addConstraint(Sketcher.Constraint("Diameter", 0, 16.0))
pocket1 = body.newObject("PartDesign::Pocket", "Pocket")
pocket1.Profile = sketch4
pocket1.Type = "ThroughAll"
pocket1.Midplane = True

doc.recompute()
